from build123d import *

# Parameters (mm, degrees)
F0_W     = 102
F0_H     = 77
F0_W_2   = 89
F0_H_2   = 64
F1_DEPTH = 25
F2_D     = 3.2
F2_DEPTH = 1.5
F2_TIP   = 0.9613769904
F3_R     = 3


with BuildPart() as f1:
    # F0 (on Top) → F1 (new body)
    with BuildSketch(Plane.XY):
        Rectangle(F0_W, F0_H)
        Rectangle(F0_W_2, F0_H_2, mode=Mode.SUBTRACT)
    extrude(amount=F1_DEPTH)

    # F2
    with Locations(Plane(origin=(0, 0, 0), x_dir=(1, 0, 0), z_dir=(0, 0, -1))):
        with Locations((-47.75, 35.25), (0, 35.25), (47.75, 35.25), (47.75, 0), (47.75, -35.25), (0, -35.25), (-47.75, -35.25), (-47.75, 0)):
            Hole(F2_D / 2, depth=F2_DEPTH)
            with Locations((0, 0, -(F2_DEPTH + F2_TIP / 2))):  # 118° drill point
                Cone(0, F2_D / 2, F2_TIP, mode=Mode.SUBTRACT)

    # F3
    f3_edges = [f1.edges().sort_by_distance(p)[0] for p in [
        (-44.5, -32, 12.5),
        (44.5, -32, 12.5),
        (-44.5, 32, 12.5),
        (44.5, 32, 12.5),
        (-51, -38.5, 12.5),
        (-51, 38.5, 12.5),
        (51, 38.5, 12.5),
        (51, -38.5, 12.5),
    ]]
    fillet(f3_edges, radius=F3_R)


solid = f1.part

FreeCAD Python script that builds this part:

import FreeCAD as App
import Part
import Sketcher

V = App.Vector


def edges_at(feature, points):
    """Names of the edges that pass closest to the given points."""
    edges = feature.Shape.Edges
    near = lambda p: min(range(len(edges)), key=lambda i: edges[i].distToShape(Part.Vertex(*p))[0])
    return sorted({f"Edge{near(p) + 1}" for p in points})

doc = App.newDocument("Part")
body = doc.addObject("PartDesign::Body", "Body")

sketch1 = doc.addObject("Sketcher::SketchObject", "Sketch")
body.addObject(sketch1)
sketch1.AttachmentSupport = (doc.XY_Plane, [""])
sketch1.MapMode = "FlatFace"
sketch1.addGeometry(Part.LineSegment(V(-51, 38, 0), V(-51, -38, 0)), False)
sketch1.addGeometry(Part.LineSegment(V(-51, -38, 0), V(51, -38, 0)), False)
sketch1.addGeometry(Part.LineSegment(V(51, -38, 0), V(51, 38, 0)), False)
sketch1.addGeometry(Part.LineSegment(V(51, 38, 0), V(-51, 38, 0)), False)
sketch1.addGeometry(Part.LineSegment(V(44, -32, 0), V(-44, -32, 0)), False)
sketch1.addGeometry(Part.LineSegment(V(-44, -32, 0), V(-44, 32, 0)), False)
sketch1.addGeometry(Part.LineSegment(V(-44, 32, 0), V(44, 32, 0)), False)
sketch1.addGeometry(Part.LineSegment(V(44, 32, 0), V(44, -32, 0)), False)
sketch1.addConstraint(Sketcher.Constraint("Coincident", 0, 2, 1, 1))
sketch1.addConstraint(Sketcher.Constraint("Coincident", 1, 2, 2, 1))
sketch1.addConstraint(Sketcher.Constraint("Coincident", 2, 2, 3, 1))
sketch1.addConstraint(Sketcher.Constraint("Coincident", 3, 2, 0, 1))
sketch1.addConstraint(Sketcher.Constraint("Coincident", 4, 2, 5, 1))
sketch1.addConstraint(Sketcher.Constraint("Coincident", 5, 2, 6, 1))
sketch1.addConstraint(Sketcher.Constraint("Coincident", 6, 2, 7, 1))
sketch1.addConstraint(Sketcher.Constraint("Coincident", 7, 2, 4, 1))
sketch1.addConstraint(Sketcher.Constraint("Vertical", 0))
sketch1.addConstraint(Sketcher.Constraint("Horizontal", 1))
sketch1.addConstraint(Sketcher.Constraint("Vertical", 2))
sketch1.addConstraint(Sketcher.Constraint("Horizontal", 3))
sketch1.addConstraint(Sketcher.Constraint("Horizontal", 4))
sketch1.addConstraint(Sketcher.Constraint("Vertical", 5))
sketch1.addConstraint(Sketcher.Constraint("Horizontal", 6))
sketch1.addConstraint(Sketcher.Constraint("Vertical", 7))
sketch1.addConstraint(Sketcher.Constraint("Symmetric", 0, 2, 2, 2, -1, 1))
sketch1.addConstraint(Sketcher.Constraint("Symmetric", 4, 2, 6, 2, -1, 1))
sketch1.addConstraint(Sketcher.Constraint("DistanceX", 1, 1, 1, 2, 102.0))
sketch1.addConstraint(Sketcher.Constraint("DistanceX", 4, 2, 4, 1, 89.0))
sketch1.addConstraint(Sketcher.Constraint("DistanceY", 0, 2, 0, 1, 77.0))
sketch1.addConstraint(Sketcher.Constraint("DistanceY", 5, 1, 5, 2, 64.0))
pad1 = doc.addObject("PartDesign::Pad", "Pad")
body.addObject(pad1)
pad1.Profile = sketch1
pad1.Length = 25

sketch2 = doc.addObject("Sketcher::SketchObject", "Sketch001")
body.addObject(sketch2)
sketch2.AttachmentSupport = (doc.XY_Plane, [""])
sketch2.MapMode = "FlatFace"
sketch2.addGeometry(Part.Circle(V(-47.8, -35.2, 0), V(0, 0, 1), 1.6), False)
sketch2.addGeometry(Part.Circle(V(0, -35.2, 0), V(0, 0, 1), 1.6), False)
sketch2.addGeometry(Part.Circle(V(47.8, -35.2, 0), V(0, 0, 1), 1.6), False)
sketch2.addGeometry(Part.Circle(V(47.8, 0, 0), V(0, 0, 1), 1.6), False)
sketch2.addGeometry(Part.Circle(V(47.8, 35.2, 0), V(0, 0, 1), 1.6), False)
sketch2.addGeometry(Part.Circle(V(0, 35.2, 0), V(0, 0, 1), 1.6), False)
sketch2.addGeometry(Part.Circle(V(-47.8, 35.2, 0), V(0, 0, 1), 1.6), False)
sketch2.addGeometry(Part.Circle(V(-47.8, 0, 0), V(0, 0, 1), 1.6), False)
sketch2.addConstraint(Sketcher.Constraint("Equal", 0, 1))
sketch2.addConstraint(Sketcher.Constraint("Equal", 1, 2))
sketch2.addConstraint(Sketcher.Constraint("Equal", 2, 3))
sketch2.addConstraint(Sketcher.Constraint("Equal", 3, 4))
sketch2.addConstraint(Sketcher.Constraint("Equal", 4, 5))
sketch2.addConstraint(Sketcher.Constraint("Equal", 5, 6))
sketch2.addConstraint(Sketcher.Constraint("Equal", 6, 7))
sketch2.addConstraint(Sketcher.Constraint("Symmetric", 0, 3, 4, 3, -1, 1))
sketch2.addConstraint(Sketcher.Constraint("Symmetric", 1, 3, 5, 3, -1, 1))
sketch2.addConstraint(Sketcher.Constraint("Symmetric", 2, 3, 6, 3, -1, 1))
sketch2.addConstraint(Sketcher.Constraint("Symmetric", 3, 3, 7, 3, -1, 1))
sketch2.addConstraint(Sketcher.Constraint("Symmetric", 0, 3, 2, 3, -2))
sketch2.addConstraint(Sketcher.Constraint("PointOnObject", 1, 3, -2))
sketch2.addConstraint(Sketcher.Constraint("PointOnObject", 3, 3, -1))
sketch2.addConstraint(Sketcher.Constraint("Horizontal", 0, 3, 1, 3))
sketch2.addConstraint(Sketcher.Constraint("Vertical", 2, 3, 3, 3))
sketch2.addConstraint(Sketcher.Constraint("Diameter", 0, 3.2))
sketch2.addConstraint(Sketcher.Constraint("DistanceX", 0, 3, 2, 3, 95.5))
sketch2.addConstraint(Sketcher.Constraint("DistanceY", 2, 3, 4, 3, 70.5))
doc.recompute()
hole = doc.addObject("PartDesign::Hole", "Hole")
body.addObject(hole)
hole.Profile = sketch2
hole.ThreadType = "None"
hole.Diameter = 3.2
hole.DepthType = "Dimension"
hole.Depth = 1.5
hole.DrillPoint = "Angled"
hole.DrillPointAngle = 118
hole.Reversed = True
doc.recompute()

fillet = doc.addObject("PartDesign::Fillet", "Fillet")
body.addObject(fillet)
fillet.Base = (hole, edges_at(hole, [
    (-44.5, -32, 12.5),
    (44.5, -32, 12.5),
    (-44.5, 32, 12.5),
    (44.5, 32, 12.5),
    (-51, -38.5, 12.5),
    (-51, 38.5, 12.5),
    (51, 38.5, 12.5),
    (51, -38.5, 12.5),
]))
fillet.Radius = 3

doc.recompute()
